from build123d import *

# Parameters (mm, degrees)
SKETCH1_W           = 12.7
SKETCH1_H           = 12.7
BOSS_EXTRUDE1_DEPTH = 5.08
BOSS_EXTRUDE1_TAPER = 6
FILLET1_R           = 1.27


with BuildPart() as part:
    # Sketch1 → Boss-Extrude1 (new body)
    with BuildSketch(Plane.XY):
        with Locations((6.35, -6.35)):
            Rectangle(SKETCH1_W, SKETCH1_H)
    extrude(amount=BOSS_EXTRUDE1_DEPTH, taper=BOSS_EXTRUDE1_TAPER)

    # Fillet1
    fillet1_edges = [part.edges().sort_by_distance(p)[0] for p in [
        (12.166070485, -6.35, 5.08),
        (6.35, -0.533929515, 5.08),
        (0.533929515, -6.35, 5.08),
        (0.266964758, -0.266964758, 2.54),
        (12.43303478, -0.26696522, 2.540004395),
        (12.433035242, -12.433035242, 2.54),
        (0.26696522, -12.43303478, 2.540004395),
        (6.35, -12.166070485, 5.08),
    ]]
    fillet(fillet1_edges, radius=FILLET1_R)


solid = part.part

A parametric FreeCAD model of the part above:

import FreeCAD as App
import Part
import Sketcher
Q = App.Units.Quantity


def edges_at(feature, points):
    """Names of the edges that pass closest to the given points."""
    edges = feature.Shape.Edges
    near = lambda p: min(range(len(edges)), key=lambda i: edges[i].distToShape(Part.Vertex(*p))[0])
    return sorted({f"Edge{near(p) + 1}" for p in points})

doc = App.newDocument("Part")
params = doc.addObject("Spreadsheet::Sheet", "Params")
for row, (alias, value) in enumerate([
    ("sketch1_width", "0.5 in"),
    ("pad1_length", "0.2 in"),
    ("pad1_taper", "-6 deg"),
    ("fillet_radius", "0.05 in"),
], start=1):
    params.set(f"A{row}", alias)
    params.set(f"B{row}", "=" + value)
    params.setAlias(f"B{row}", alias)

body = doc.addObject("PartDesign::Body", "Body")

# Sketch on XY plane
sketch1 = doc.addObject("Sketcher::SketchObject", "Sketch")
body.addObject(sketch1)
sketch1.AttachmentSupport = (doc.XY_Plane, [""])
sketch1.MapMode = "FlatFace"
sketch1.addGeometry([
    Part.LineSegment(App.Vector(0, 0, 0), App.Vector(0, -13, 0)),
    Part.LineSegment(App.Vector(0, -13, 0), App.Vector(13, -13, 0)),
    Part.LineSegment(App.Vector(13, -13, 0), App.Vector(13, 0, 0)),
    Part.LineSegment(App.Vector(13, 0, 0), App.Vector(0, 0, 0)),
], False)
sketch1.addConstraint([
    Sketcher.Constraint("Coincident", 0, 2, 1, 1),
    Sketcher.Constraint("Coincident", 1, 2, 2, 1),
    Sketcher.Constraint("Coincident", 2, 2, 3, 1),
    Sketcher.Constraint("Coincident", 3, 2, 0, 1),
    Sketcher.Constraint("Vertical", 0),
    Sketcher.Constraint("Horizontal", 1),
    Sketcher.Constraint("Vertical", 2),
    Sketcher.Constraint("Horizontal", 3),
    Sketcher.Constraint("Coincident", 3, 2, -1, 1),
    Sketcher.Constraint("Equal", 3, 0),
    Sketcher.Constraint("DistanceX", 1, 1, 1, 2, Q("0.5 in")),
])
sketch1.setExpression("Constraints[10]", "Params.sketch1_width")
pad1 = doc.addObject("PartDesign::Pad", "Pad")
body.addObject(pad1)
pad1.Profile = sketch1
pad1.setExpression("Length", "Params.pad1_length")
pad1.setExpression("TaperAngle", "Params.pad1_taper")
doc.recompute()

fillet = doc.addObject("PartDesign::Fillet", "Fillet")
body.addObject(fillet)
fillet.Base = (pad1, edges_at(pad1, [
    (12.166, -6.35, 5.08),
    (6.35, -0.534, 5.08),
    (0.534, -6.35, 5.08),
    (0.267, -0.267, 2.54),
    (12.433, -0.267, 2.54),
    (12.433, -12.433, 2.54),
    (0.267, -12.433, 2.54),
    (6.35, -12.166, 5.08),
]))
fillet.setExpression("Radius", "Params.fillet_radius")

doc.recompute()
